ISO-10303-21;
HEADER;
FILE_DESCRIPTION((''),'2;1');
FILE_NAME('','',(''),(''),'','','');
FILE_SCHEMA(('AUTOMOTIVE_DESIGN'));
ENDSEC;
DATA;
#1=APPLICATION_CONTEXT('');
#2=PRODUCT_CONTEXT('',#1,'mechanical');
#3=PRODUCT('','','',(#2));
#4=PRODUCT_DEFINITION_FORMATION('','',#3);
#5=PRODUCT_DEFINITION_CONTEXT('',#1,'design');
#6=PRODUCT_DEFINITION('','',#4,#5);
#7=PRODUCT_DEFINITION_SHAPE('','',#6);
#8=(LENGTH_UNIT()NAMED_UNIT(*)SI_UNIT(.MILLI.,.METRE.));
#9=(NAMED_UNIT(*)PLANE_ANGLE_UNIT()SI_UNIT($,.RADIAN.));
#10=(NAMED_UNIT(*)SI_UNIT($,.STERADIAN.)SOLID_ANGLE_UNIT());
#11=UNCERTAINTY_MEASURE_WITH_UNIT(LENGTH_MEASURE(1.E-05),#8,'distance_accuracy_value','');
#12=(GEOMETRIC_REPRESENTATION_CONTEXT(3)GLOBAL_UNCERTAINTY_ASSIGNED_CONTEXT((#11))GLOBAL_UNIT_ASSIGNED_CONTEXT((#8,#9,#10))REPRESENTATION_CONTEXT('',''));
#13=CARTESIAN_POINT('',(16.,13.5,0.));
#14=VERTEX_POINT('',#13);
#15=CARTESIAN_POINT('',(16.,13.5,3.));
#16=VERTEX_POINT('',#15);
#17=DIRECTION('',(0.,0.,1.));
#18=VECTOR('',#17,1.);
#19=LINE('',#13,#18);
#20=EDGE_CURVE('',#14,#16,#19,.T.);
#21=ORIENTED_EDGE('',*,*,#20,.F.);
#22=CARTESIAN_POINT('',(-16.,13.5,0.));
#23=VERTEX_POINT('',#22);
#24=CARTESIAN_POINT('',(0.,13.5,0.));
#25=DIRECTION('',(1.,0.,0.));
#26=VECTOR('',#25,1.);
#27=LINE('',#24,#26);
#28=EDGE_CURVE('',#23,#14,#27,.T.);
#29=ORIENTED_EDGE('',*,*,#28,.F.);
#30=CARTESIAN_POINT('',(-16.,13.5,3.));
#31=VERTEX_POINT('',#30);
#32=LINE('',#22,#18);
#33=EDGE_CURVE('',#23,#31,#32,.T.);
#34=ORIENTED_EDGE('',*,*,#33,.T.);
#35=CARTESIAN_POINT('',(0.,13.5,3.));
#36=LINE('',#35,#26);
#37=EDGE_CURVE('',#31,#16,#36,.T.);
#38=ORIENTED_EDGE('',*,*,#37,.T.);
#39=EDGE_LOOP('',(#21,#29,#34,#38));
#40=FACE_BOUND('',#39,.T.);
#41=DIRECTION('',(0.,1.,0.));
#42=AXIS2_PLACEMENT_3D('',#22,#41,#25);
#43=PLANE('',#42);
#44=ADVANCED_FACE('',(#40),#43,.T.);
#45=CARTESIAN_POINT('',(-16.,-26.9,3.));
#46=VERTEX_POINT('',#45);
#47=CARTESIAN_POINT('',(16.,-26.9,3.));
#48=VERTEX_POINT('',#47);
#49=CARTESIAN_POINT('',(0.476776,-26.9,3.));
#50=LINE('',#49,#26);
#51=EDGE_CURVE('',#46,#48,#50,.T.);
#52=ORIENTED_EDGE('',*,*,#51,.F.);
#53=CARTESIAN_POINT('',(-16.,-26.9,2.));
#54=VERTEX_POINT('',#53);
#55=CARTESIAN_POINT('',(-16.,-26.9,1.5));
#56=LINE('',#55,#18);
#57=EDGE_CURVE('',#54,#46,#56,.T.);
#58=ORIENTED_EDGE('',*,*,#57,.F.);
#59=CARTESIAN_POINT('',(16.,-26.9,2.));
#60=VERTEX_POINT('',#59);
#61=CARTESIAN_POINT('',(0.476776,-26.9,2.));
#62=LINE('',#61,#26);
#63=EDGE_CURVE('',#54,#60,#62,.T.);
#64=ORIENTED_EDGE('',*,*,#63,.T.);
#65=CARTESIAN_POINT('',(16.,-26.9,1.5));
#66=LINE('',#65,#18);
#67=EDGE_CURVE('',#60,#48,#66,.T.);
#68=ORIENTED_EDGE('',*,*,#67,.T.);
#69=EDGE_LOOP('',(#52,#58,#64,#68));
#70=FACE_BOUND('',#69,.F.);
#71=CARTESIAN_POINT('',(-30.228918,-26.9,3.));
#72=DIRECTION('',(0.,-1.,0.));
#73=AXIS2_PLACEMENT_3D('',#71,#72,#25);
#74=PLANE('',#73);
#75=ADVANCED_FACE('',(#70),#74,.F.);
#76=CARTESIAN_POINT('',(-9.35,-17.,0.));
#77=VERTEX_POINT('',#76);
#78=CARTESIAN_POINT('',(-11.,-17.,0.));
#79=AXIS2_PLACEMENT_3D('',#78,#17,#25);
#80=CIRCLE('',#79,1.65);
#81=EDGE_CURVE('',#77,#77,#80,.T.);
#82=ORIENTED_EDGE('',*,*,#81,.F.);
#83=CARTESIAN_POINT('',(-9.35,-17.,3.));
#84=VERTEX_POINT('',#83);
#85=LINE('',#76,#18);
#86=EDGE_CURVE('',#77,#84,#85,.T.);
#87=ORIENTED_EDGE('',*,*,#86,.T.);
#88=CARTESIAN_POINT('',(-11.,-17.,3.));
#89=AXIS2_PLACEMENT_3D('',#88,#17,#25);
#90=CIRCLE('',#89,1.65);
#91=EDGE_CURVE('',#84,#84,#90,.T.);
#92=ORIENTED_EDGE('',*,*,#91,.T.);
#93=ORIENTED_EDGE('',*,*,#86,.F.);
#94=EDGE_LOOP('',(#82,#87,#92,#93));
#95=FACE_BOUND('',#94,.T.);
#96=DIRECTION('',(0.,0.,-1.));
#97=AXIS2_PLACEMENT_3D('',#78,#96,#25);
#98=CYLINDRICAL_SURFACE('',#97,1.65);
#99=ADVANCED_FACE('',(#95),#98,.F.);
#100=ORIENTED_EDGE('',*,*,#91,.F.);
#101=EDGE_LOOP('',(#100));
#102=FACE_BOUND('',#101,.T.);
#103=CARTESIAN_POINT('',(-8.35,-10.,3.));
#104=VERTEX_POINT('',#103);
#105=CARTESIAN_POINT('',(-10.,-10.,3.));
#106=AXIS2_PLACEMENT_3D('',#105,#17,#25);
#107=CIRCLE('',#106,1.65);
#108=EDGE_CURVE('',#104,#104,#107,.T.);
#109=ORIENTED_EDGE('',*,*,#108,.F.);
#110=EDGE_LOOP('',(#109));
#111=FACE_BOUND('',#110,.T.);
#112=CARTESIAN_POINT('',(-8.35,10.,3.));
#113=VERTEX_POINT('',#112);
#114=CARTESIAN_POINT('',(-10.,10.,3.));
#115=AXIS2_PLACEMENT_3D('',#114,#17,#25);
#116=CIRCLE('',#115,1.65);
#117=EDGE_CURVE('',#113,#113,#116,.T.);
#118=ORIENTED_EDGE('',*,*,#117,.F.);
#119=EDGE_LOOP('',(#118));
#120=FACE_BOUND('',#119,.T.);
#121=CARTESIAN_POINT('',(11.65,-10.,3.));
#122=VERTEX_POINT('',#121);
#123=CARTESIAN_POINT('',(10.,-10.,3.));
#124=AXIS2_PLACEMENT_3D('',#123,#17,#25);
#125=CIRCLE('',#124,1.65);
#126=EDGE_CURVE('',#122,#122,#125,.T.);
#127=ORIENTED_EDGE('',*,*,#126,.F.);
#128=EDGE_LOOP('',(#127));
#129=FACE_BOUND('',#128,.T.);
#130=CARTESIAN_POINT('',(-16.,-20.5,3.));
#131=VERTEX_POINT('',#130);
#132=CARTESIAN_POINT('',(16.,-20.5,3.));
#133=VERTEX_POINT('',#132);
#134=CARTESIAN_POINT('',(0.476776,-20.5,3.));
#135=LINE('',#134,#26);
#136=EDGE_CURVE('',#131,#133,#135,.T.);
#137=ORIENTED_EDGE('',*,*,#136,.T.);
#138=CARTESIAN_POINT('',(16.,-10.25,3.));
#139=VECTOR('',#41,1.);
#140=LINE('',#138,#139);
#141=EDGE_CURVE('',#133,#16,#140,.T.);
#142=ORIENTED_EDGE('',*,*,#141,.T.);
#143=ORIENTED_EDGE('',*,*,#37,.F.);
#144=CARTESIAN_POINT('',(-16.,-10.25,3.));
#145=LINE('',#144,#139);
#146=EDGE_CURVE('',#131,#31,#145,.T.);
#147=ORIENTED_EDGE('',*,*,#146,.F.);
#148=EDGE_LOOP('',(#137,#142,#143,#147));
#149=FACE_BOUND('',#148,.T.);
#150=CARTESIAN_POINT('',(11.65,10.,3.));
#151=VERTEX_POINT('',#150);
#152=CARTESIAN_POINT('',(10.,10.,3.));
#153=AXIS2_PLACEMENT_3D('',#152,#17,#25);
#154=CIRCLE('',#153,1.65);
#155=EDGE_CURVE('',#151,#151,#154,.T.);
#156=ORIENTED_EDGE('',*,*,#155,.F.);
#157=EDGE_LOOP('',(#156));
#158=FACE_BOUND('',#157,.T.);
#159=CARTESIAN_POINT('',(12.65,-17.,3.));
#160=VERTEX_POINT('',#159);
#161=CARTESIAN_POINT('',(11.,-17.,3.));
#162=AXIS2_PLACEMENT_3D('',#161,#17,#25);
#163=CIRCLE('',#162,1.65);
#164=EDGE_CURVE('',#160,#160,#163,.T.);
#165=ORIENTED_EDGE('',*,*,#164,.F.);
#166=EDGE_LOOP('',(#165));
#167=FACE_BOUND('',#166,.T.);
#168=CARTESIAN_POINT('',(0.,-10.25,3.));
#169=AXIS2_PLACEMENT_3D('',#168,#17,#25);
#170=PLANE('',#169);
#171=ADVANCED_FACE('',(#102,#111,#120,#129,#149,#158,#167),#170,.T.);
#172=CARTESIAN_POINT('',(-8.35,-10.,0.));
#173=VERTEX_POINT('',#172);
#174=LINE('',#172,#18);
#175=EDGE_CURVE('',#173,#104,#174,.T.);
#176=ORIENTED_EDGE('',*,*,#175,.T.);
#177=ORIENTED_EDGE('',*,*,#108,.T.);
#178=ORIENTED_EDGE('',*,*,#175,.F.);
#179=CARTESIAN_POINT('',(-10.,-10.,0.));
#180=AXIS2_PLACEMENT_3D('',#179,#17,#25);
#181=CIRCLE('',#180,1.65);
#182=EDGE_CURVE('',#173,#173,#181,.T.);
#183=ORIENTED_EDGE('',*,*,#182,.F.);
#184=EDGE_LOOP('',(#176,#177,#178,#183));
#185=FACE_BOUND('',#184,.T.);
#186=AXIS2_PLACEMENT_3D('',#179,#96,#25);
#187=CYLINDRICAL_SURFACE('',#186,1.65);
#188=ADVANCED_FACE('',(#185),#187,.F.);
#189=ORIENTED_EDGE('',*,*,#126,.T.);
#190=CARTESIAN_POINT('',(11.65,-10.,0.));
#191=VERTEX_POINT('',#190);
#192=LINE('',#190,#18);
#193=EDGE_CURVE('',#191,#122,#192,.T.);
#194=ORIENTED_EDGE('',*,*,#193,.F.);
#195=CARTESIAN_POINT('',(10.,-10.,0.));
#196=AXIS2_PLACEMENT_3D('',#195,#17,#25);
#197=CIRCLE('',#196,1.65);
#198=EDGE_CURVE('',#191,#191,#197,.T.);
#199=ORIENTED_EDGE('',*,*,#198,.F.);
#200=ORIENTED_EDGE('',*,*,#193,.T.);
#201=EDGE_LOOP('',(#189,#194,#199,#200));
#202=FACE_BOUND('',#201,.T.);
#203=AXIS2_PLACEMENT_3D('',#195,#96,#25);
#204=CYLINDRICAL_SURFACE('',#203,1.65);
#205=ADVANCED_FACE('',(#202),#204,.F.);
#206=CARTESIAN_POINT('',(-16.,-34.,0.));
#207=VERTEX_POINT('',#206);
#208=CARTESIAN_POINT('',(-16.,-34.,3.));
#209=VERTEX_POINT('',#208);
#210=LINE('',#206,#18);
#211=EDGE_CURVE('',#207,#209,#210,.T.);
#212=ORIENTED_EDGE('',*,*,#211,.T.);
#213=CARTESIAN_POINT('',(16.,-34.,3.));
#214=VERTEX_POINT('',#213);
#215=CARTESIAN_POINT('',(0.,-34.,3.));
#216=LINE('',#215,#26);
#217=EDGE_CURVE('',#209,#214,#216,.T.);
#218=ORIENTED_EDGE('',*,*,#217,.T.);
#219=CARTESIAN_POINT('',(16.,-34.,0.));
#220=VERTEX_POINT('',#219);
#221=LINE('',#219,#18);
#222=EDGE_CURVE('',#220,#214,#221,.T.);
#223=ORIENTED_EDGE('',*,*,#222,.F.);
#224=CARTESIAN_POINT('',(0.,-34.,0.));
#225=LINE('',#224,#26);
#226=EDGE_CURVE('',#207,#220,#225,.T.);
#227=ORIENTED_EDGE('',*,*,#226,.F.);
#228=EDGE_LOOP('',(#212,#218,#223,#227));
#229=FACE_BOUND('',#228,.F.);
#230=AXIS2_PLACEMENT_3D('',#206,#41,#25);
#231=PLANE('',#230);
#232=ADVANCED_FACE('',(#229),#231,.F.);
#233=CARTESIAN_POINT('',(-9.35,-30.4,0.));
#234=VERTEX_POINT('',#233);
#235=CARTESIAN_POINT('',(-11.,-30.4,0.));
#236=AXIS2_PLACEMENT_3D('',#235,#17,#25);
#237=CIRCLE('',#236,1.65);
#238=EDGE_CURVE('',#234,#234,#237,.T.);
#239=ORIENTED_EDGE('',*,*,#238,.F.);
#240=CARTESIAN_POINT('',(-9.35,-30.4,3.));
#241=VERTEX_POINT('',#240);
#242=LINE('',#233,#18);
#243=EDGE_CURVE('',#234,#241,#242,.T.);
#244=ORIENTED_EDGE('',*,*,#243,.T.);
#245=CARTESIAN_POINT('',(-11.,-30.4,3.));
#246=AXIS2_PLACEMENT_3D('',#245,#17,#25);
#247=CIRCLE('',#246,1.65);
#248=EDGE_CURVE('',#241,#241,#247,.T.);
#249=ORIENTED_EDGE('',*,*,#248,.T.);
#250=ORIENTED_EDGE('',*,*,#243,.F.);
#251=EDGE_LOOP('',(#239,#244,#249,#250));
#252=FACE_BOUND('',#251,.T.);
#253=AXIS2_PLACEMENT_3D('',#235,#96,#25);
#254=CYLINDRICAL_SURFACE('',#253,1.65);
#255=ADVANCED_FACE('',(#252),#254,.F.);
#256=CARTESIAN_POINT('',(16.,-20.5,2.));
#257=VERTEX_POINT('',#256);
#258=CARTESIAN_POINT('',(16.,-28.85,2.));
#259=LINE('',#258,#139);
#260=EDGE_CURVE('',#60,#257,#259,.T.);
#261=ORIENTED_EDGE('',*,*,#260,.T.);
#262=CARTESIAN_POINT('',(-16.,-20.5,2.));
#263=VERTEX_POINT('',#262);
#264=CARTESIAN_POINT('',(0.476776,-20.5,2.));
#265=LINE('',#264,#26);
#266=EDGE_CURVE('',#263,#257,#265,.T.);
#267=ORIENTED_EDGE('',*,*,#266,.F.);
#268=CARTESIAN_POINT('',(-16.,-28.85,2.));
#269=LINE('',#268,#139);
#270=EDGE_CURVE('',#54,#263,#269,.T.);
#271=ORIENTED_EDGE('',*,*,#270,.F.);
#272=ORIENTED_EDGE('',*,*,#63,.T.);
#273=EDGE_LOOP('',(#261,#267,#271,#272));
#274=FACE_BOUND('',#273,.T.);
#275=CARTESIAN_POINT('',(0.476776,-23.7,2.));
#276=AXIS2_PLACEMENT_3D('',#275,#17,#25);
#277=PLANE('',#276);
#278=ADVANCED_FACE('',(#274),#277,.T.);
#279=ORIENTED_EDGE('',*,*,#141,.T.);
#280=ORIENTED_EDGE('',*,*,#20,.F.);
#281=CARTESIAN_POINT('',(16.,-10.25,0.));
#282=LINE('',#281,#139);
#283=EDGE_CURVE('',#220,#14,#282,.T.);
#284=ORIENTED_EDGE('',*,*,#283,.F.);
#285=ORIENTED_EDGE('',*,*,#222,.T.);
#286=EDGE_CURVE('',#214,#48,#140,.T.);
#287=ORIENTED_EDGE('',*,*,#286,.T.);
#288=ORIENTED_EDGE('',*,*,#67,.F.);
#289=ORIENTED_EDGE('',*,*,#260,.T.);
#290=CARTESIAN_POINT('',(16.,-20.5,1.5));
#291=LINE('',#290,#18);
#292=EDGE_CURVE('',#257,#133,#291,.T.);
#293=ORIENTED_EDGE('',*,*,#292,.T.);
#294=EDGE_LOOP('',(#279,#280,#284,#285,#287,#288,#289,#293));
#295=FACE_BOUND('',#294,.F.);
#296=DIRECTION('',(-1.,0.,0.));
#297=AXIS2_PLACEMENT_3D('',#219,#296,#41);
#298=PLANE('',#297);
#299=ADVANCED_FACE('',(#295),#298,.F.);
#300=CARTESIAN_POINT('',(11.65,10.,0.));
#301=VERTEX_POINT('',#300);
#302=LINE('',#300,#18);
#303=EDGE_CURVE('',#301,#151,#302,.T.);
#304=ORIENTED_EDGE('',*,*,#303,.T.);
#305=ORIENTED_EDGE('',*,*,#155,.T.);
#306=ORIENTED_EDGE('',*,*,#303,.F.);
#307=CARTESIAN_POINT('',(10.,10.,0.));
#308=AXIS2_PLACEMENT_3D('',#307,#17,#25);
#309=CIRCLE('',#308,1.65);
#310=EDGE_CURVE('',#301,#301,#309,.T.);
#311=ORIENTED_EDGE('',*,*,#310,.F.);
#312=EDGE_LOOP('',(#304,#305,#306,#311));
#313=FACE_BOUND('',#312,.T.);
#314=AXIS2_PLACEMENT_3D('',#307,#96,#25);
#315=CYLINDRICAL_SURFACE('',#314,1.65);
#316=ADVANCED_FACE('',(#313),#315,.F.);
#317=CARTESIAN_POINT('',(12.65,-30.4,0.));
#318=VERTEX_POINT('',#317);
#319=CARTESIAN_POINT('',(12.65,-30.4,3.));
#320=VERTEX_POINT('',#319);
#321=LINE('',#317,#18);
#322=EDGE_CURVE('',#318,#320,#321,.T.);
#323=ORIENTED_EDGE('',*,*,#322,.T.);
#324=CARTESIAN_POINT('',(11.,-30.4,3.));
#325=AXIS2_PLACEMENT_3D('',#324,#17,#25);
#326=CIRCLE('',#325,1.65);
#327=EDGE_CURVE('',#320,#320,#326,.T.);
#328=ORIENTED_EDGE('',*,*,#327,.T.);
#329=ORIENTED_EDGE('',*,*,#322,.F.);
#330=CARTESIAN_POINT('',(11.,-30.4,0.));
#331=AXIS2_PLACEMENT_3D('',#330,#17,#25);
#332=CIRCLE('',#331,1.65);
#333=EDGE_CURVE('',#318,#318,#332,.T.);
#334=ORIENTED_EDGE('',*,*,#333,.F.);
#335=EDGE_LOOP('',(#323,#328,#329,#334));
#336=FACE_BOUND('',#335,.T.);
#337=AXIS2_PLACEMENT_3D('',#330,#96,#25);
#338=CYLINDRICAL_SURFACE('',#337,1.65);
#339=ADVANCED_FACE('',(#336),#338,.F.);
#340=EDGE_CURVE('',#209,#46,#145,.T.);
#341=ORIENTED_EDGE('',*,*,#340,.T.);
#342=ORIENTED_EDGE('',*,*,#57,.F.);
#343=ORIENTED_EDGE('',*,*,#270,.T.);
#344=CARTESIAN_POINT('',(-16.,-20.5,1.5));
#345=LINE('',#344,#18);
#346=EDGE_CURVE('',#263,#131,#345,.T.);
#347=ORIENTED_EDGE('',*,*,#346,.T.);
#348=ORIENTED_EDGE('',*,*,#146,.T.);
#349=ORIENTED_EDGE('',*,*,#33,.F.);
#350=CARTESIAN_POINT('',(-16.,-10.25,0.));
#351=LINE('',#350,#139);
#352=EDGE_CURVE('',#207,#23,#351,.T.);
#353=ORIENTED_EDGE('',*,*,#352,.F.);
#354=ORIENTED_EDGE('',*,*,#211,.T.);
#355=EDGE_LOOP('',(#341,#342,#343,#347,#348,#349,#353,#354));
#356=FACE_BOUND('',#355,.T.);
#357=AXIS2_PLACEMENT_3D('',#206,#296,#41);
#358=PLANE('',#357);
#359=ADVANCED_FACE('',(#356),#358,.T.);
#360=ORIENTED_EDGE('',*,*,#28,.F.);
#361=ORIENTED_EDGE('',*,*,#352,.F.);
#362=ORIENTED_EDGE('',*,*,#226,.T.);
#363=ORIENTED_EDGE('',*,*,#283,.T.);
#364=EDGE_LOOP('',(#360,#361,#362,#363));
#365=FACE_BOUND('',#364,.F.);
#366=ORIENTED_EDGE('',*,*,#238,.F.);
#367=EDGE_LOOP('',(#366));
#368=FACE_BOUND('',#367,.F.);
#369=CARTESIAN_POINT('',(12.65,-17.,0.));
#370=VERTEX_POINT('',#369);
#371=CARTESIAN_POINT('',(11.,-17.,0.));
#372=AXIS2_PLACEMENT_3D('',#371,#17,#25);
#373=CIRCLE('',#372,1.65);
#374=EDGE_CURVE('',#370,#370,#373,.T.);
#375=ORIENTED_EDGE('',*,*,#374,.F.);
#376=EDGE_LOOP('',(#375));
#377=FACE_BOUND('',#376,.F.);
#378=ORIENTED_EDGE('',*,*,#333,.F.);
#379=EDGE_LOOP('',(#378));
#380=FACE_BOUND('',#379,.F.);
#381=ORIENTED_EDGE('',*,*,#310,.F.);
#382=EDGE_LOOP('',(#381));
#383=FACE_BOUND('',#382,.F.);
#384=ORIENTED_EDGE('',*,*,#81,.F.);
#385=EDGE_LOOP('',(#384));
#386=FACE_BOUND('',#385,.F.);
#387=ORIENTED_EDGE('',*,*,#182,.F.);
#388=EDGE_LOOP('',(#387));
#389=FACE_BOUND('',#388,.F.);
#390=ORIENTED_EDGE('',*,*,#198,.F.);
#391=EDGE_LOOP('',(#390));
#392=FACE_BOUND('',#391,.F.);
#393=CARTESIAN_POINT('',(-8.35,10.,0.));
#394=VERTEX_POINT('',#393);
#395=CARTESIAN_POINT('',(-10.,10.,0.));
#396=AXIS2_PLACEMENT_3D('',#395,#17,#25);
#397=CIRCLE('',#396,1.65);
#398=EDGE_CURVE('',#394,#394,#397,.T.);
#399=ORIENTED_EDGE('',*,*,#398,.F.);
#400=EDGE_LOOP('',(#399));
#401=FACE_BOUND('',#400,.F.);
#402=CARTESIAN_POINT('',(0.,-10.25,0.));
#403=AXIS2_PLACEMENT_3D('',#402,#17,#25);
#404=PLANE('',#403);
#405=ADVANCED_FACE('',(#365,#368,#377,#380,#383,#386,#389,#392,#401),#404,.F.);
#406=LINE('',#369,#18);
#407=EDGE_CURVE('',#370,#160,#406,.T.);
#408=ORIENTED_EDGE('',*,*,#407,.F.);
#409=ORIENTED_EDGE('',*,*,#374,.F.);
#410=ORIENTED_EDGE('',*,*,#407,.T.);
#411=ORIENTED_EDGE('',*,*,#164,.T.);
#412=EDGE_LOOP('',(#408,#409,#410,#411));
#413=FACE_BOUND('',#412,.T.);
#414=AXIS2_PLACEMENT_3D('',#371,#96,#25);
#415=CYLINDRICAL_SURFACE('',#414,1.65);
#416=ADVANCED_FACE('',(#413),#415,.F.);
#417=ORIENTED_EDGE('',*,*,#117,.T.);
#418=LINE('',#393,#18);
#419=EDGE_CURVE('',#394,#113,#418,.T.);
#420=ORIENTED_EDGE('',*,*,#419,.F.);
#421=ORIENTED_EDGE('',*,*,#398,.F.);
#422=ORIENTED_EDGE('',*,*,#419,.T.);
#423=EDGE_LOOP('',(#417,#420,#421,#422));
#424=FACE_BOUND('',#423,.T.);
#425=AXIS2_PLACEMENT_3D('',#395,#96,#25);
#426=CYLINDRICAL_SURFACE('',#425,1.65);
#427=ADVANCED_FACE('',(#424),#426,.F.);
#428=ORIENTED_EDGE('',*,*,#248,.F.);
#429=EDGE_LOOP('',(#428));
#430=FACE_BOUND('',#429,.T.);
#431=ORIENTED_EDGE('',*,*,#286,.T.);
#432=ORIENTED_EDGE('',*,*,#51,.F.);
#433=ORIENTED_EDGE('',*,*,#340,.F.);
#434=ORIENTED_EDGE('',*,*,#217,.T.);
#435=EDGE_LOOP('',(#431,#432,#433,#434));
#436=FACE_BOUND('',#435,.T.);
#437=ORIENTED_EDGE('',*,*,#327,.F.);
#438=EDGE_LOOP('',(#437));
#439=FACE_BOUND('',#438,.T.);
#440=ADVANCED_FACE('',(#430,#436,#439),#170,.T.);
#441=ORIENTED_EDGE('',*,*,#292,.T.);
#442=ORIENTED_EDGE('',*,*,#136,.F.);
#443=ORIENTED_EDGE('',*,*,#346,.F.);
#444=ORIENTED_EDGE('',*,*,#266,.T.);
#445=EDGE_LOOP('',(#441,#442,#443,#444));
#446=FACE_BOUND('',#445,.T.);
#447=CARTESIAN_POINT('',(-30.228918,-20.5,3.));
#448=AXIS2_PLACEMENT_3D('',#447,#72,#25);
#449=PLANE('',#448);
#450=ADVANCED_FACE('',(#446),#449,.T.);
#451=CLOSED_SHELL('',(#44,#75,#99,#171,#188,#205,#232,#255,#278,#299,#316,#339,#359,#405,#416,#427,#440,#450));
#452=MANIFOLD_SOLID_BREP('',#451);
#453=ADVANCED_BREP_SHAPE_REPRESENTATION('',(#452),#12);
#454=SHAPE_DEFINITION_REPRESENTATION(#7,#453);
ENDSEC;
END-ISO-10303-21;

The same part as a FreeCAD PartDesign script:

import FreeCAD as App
import Part
import Sketcher
from FreeCAD import Vector
Q = App.Units.Quantity


def add_polygon(sketch, points):
    """Adds a closed chain of lines whose ends are joined by coincident constraints."""
    first, n = sketch.GeometryCount, len(points)
    for a, b in zip(points, points[1:] + points[:1]):
        sketch.addGeometry(Part.LineSegment(App.Vector(*a, 0), App.Vector(*b, 0)), False)
    for i in range(n):
        sketch.addConstraint(Sketcher.Constraint("Coincident", first + i, 2, first + (i + 1) % n, 1))

doc = App.newDocument("Part")
body = doc.addObject("PartDesign::Body", "Body")

# Sketch on XY plane
sketch1 = body.newObject("Sketcher::SketchObject", "Sketch")
sketch1.AttachmentSupport = (doc.getObject("XY_Plane"), [""])
sketch1.MapMode = "FlatFace"
add_polygon(sketch1, [(-16, 13.5), (-16, -34), (16, -34), (16, 13.5)])  # lines 0-3
sketch1.addGeometry(Part.Circle(Vector(-11, -30.4, 0), Vector(0, 0, 1), 1.65), False)  # 4
sketch1.addGeometry(Part.Circle(Vector(-11, -17, 0), Vector(0, 0, 1), 1.65), False)  # 5
sketch1.addGeometry(Part.Circle(Vector(11, -30.4, 0), Vector(0, 0, 1), 1.65), False)  # 6
sketch1.addGeometry(Part.Circle(Vector(11, -17, 0), Vector(0, 0, 1), 1.65), False)  # 7
sketch1.addGeometry(Part.Circle(Vector(-10, -10, 0), Vector(0, 0, 1), 1.65), False)  # 8
sketch1.addGeometry(Part.Circle(Vector(-10, 10, 0), Vector(0, 0, 1), 1.65), False)  # 9
sketch1.addGeometry(Part.Circle(Vector(10, -10, 0), Vector(0, 0, 1), 1.65), False)  # 10
sketch1.addGeometry(Part.Circle(Vector(10, 10, 0), Vector(0, 0, 1), 1.65), False)  # 11
sketch1.addConstraint([
    Sketcher.Constraint("Vertical", 0),
    Sketcher.Constraint("Horizontal", 1),
    Sketcher.Constraint("Vertical", 2),
    Sketcher.Constraint("Horizontal", 3),
    Sketcher.Constraint("Equal", 4, 5),
    Sketcher.Constraint("Equal", 5, 6),
    Sketcher.Constraint("Equal", 6, 7),
    Sketcher.Constraint("Equal", 7, 8),
    Sketcher.Constraint("Equal", 8, 9),
    Sketcher.Constraint("Equal", 9, 10),
    Sketcher.Constraint("Equal", 10, 11),
    Sketcher.Constraint("Symmetric", 9, 3, 10, 3, -1, 1),
    Sketcher.Constraint("Symmetric", 8, 3, 11, 3, -1, 1),
    Sketcher.Constraint("Symmetric", 4, 3, 6, 3, -2),
    Sketcher.Constraint("Symmetric", 5, 3, 7, 3, -2),
    Sketcher.Constraint("Symmetric", 8, 3, 10, 3, -2),
    Sketcher.Constraint("Vertical", 4, 3, 5, 3),
    Sketcher.Constraint("Diameter", 4, Q("3.3 mm")),
    Sketcher.Constraint("DistanceX", 1, 1, 1, 2, Q("32 mm")),
    Sketcher.Constraint("DistanceY", 0, 2, 0, 1, Q("47.5 mm")),
    Sketcher.Constraint("DistanceX", 4, 3, -1, 1, Q("11 mm")),
    Sketcher.Constraint("DistanceY", 5, 3, -1, 1, Q("17 mm")),
    Sketcher.Constraint("DistanceX", 8, 3, -1, 1, Q("10 mm")),
    Sketcher.Constraint("DistanceY", 8, 3, -1, 1, Q("10 mm")),
    Sketcher.Constraint("DistanceX", 0, 2, -1, 1, Q("16 mm")),
    Sketcher.Constraint("DistanceY", 0, 2, -1, 1, Q("34 mm")),
    Sketcher.Constraint("DistanceY", 4, 3, -1, 1, Q("30.4 mm")),
])
pad1 = body.newObject("PartDesign::Pad", "Pad")
pad1.Profile = sketch1
pad1.Length = 3

# Sketch on XY plane
sketch2 = body.newObject("Sketcher::SketchObject", "Sketch001")
sketch2.AttachmentSupport = (doc.getObject("XY_Plane"), [""])
sketch2.MapMode = "FlatFace"
sketch2.AttachmentOffset = App.Placement(Vector(0, 0, 3), App.Rotation())
add_polygon(sketch2, [(-30.228918, -20.5), (-30.228918, -26.9), (31.18247, -26.9), (31.18247, -20.5)])  # lines 0-3
sketch2.addConstraint([
    Sketcher.Constraint("Vertical", 0),
    Sketcher.Constraint("Horizontal", 1),
    Sketcher.Constraint("Vertical", 2),
    Sketcher.Constraint("Horizontal", 3),
    Sketcher.Constraint("DistanceY", 0, 2, 0, 1, Q("6.4 mm")),
    Sketcher.Constraint("DistanceY", 0, 2, -1, 1, Q("26.9 mm")),
    Sketcher.Constraint("DistanceX", 1, 1, 1, 2, Q("61.411388 mm")),
    Sketcher.Constraint("DistanceX", 0, 2, -1, 1, Q("30.228918 mm")),
])
pocket1 = body.newObject("PartDesign::Pocket", "Pocket")
pocket1.Profile = sketch2
pocket1.Length = 1

doc.recompute()
